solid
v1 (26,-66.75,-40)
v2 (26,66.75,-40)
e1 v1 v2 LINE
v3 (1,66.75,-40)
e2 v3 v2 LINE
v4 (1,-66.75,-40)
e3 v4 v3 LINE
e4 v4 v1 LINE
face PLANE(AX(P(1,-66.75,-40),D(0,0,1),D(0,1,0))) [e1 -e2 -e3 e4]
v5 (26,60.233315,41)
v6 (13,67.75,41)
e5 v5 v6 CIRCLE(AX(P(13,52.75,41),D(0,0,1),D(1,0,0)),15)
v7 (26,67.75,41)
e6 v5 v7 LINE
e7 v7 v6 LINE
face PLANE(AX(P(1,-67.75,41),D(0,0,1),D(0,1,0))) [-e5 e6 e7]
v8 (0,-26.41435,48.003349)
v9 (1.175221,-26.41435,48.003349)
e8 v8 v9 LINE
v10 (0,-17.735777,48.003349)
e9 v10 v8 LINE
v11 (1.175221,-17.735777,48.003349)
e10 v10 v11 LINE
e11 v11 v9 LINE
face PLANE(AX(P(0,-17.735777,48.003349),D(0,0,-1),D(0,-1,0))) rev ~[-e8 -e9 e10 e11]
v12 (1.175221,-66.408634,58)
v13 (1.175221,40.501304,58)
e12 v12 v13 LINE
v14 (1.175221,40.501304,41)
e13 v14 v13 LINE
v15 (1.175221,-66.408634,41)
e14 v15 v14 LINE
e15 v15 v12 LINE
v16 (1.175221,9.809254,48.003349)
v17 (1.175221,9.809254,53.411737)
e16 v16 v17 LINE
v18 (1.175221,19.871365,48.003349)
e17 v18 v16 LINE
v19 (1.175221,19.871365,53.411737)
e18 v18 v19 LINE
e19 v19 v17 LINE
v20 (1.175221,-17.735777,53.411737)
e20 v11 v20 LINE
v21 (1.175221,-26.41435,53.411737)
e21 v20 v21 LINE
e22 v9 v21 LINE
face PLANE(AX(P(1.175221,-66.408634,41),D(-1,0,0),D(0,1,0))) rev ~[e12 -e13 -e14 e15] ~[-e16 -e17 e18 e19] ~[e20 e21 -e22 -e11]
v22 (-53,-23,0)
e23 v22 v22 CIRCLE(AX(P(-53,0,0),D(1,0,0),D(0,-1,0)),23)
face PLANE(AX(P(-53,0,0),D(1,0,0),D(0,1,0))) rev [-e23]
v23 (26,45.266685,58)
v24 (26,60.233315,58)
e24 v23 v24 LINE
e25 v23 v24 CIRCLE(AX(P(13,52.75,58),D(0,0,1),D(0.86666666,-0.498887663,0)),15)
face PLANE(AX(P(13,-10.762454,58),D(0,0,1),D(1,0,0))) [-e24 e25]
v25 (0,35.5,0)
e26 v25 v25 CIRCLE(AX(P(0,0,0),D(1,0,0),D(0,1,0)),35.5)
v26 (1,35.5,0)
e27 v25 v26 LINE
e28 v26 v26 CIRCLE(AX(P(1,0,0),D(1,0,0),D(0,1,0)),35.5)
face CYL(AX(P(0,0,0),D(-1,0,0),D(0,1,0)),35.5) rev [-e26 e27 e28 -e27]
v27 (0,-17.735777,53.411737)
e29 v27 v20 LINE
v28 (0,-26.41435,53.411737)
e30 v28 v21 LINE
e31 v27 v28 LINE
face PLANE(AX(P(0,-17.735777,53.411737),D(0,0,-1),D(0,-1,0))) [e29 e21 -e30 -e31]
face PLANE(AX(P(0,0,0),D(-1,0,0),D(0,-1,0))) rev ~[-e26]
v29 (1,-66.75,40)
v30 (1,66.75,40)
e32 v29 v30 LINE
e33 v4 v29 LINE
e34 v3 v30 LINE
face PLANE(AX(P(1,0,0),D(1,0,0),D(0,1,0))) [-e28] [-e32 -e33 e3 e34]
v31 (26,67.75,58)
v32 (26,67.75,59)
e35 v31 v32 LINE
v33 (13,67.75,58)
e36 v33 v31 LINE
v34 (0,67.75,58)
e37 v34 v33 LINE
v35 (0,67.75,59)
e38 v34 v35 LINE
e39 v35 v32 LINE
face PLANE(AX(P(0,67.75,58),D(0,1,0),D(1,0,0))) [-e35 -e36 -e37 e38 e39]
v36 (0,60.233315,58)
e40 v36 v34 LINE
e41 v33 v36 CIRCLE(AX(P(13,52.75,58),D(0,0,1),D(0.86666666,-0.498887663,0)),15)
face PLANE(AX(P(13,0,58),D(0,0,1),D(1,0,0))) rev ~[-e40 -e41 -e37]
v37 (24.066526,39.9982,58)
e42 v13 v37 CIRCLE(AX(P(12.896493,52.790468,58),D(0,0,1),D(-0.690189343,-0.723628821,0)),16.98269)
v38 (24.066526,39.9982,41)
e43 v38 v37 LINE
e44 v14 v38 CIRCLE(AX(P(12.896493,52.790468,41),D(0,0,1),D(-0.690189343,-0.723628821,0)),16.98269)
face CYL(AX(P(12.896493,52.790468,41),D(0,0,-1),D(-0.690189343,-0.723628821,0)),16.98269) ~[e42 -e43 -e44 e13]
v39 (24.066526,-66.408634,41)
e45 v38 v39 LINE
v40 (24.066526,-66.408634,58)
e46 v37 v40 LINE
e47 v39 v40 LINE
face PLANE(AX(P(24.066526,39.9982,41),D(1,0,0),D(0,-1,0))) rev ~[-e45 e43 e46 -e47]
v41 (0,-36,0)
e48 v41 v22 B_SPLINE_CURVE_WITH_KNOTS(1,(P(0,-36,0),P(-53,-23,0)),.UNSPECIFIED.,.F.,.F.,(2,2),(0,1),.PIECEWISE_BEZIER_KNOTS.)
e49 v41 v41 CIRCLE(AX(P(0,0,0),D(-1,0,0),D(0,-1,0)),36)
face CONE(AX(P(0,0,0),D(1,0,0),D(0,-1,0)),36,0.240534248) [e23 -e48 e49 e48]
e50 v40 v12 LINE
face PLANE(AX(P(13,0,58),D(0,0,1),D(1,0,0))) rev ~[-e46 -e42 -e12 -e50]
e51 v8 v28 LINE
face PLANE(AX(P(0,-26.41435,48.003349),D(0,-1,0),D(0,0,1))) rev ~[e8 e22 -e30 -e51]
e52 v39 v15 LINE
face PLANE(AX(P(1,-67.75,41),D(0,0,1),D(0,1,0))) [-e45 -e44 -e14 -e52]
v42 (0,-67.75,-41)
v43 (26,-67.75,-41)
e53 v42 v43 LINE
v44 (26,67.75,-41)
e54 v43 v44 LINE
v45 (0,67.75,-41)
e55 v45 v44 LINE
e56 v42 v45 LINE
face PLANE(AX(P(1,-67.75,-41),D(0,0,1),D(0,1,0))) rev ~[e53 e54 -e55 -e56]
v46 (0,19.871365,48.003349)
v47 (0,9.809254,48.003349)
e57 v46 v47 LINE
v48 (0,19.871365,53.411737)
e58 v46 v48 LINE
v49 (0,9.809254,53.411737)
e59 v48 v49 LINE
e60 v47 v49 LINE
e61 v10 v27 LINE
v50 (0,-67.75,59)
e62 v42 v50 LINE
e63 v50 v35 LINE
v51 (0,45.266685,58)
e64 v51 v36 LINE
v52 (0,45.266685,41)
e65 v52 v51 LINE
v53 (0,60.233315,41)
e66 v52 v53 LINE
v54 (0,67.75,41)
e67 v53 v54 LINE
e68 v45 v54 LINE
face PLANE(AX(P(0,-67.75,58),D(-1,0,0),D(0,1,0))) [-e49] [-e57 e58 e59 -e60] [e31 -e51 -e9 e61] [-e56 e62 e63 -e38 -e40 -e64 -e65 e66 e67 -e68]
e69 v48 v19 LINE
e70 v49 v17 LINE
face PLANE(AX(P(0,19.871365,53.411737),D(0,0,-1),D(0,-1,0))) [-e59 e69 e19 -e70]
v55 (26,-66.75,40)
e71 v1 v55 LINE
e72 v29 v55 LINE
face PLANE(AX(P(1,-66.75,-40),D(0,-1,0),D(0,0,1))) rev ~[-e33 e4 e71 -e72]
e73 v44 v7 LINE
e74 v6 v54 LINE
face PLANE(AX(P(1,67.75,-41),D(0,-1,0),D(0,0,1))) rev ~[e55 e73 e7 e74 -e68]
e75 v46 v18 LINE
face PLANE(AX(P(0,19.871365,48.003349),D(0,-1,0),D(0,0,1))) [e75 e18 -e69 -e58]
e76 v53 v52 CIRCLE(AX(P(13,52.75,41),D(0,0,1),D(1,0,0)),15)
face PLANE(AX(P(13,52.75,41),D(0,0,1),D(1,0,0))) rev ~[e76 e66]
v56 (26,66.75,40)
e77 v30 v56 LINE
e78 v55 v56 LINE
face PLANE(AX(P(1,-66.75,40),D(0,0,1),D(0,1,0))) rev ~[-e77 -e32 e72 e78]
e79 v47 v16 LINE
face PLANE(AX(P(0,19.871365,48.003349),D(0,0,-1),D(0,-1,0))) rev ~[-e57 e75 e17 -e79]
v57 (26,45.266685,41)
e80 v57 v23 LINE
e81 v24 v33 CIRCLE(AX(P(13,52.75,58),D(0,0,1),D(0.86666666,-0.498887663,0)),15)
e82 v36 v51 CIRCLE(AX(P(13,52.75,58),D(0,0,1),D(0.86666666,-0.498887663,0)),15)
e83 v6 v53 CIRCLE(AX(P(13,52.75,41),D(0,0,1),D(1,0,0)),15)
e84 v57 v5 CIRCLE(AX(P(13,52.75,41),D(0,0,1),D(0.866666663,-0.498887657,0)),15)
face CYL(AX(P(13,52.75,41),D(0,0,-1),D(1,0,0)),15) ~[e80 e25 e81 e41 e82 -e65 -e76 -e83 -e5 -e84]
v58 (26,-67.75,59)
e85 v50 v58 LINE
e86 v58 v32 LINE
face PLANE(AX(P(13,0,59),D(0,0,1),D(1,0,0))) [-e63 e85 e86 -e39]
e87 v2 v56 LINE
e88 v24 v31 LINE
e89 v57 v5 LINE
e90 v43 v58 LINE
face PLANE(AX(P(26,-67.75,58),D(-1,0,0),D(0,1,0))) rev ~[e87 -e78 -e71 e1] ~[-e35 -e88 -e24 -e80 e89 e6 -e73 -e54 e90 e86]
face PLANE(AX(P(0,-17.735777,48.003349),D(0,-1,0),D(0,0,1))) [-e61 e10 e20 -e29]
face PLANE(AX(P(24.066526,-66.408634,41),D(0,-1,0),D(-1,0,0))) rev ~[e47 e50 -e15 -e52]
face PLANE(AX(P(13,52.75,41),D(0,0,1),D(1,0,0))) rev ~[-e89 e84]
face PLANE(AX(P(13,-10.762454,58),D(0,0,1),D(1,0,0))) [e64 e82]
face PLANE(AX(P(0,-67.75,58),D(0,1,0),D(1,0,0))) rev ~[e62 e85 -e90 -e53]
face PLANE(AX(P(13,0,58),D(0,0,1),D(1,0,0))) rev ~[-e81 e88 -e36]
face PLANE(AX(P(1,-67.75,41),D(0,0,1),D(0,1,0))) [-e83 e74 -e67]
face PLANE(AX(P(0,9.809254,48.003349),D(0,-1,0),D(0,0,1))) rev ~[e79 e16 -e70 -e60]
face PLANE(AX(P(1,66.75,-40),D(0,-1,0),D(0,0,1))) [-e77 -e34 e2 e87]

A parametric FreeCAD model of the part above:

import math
import FreeCAD as App
import Part
import Sketcher
Q = App.Units.Quantity

doc = App.newDocument("Part")
body = doc.addObject("PartDesign::Body", "Body")

# Sketch on YZ plane
sketch1 = doc.addObject("Sketcher::SketchObject", "Sketch")
body.addObject(sketch1)
sketch1.AttachmentSupport = (doc.YZ_Plane, [""])
sketch1.MapMode = "FlatFace"
sketch1.addGeometry([
    Part.LineSegment(App.Vector(-67.75, 41, 0), App.Vector(-67.75, -41, 0)),  # 0
    Part.LineSegment(App.Vector(-67.75, -41, 0), App.Vector(67.75, -41, 0)),  # 1
    Part.LineSegment(App.Vector(67.75, -41, 0), App.Vector(67.75, 41, 0)),  # 2
    Part.LineSegment(App.Vector(67.75, 41, 0), App.Vector(-67.75, 41, 0)),  # 3
    Part.Circle(App.Vector(0, 0, 0), App.Vector(0, 0, 1), 35.5),  # 4
], False)
sketch1.addConstraint([
    Sketcher.Constraint("Coincident", 0, 2, 1, 1),
    Sketcher.Constraint("Coincident", 1, 2, 2, 1),
    Sketcher.Constraint("Coincident", 2, 2, 3, 1),
    Sketcher.Constraint("Coincident", 3, 2, 0, 1),
    Sketcher.Constraint("Vertical", 0),
    Sketcher.Constraint("Horizontal", 1),
    Sketcher.Constraint("Vertical", 2),
    Sketcher.Constraint("Horizontal", 3),
    Sketcher.Constraint("Coincident", 4, 3, -1, 1),
    Sketcher.Constraint("Symmetric", 0, 2, 2, 2, -1, 1),
    Sketcher.Constraint("Diameter", 4, Q("71 mm")),
    Sketcher.Constraint("DistanceY", 0, 2, 0, 1, Q("82 mm")),
    Sketcher.Constraint("DistanceX", 1, 1, 1, 2, Q("135.5 mm")),
])
pad1 = doc.addObject("PartDesign::Pad", "Pad")
body.addObject(pad1)
pad1.Profile = sketch1
pad1.Length = 1

# Sketch on YZ plane
sketch2 = doc.addObject("Sketcher::SketchObject", "Sketch001")
body.addObject(sketch2)
sketch2.AttachmentSupport = (doc.YZ_Plane, [""])
sketch2.MapMode = "FlatFace"
sketch2.addGeometry(Part.Circle(App.Vector(0, 0, 0), App.Vector(0, 0, 1), 36), False)
sketch2.addConstraint([
    Sketcher.Constraint("Coincident", 0, 3, -1, 1),
    Sketcher.Constraint("Diameter", 0, Q("72 mm")),
])

# Sketch on YZ plane
sketch3 = doc.addObject("Sketcher::SketchObject", "Sketch002")
body.addObject(sketch3)
sketch3.AttachmentSupport = (doc.YZ_Plane, [""])
sketch3.MapMode = "FlatFace"
sketch3.AttachmentOffset = App.Placement(App.Vector(0, 0, -53), App.Rotation())
sketch3.addGeometry(Part.Circle(App.Vector(0, 0, 0), App.Vector(0, 0, 1), 23), False)
sketch3.addConstraint([
    Sketcher.Constraint("Coincident", 0, 3, -1, 1),
    Sketcher.Constraint("Diameter", 0, Q("46 mm")),
])

additiveloft = doc.addObject("PartDesign::AdditiveLoft", "AdditiveLoft")
body.addObject(additiveloft)
additiveloft.Profile = sketch2
additiveloft.Sections = [sketch3]

# Sketch on YZ plane
sketch4 = doc.addObject("Sketcher::SketchObject", "Sketch003")
body.addObject(sketch4)
sketch4.AttachmentSupport = (doc.YZ_Plane, [""])
sketch4.MapMode = "FlatFace"
sketch4.AttachmentOffset = App.Placement(App.Vector(0, 0, 1), App.Rotation())
sketch4.addGeometry([
    Part.LineSegment(App.Vector(-67.75, 41, 0), App.Vector(-67.75, -41, 0)),  # 0
    Part.LineSegment(App.Vector(-67.75, -41, 0), App.Vector(67.75, -41, 0)),  # 1
    Part.LineSegment(App.Vector(67.75, -41, 0), App.Vector(67.75, 41, 0)),  # 2
    Part.LineSegment(App.Vector(67.75, 41, 0), App.Vector(-67.75, 41, 0)),  # 3
    Part.LineSegment(App.Vector(66.75, -40, 0), App.Vector(-66.75, -40, 0)),  # 4
    Part.LineSegment(App.Vector(-66.75, -40, 0), App.Vector(-66.75, 40, 0)),  # 5
    Part.LineSegment(App.Vector(-66.75, 40, 0), App.Vector(66.75, 40, 0)),  # 6
    Part.LineSegment(App.Vector(66.75, 40, 0), App.Vector(66.75, -40, 0)),  # 7
], False)
sketch4.addConstraint([
    Sketcher.Constraint("Coincident", 0, 2, 1, 1),
    Sketcher.Constraint("Coincident", 1, 2, 2, 1),
    Sketcher.Constraint("Coincident", 2, 2, 3, 1),
    Sketcher.Constraint("Coincident", 3, 2, 0, 1),
    Sketcher.Constraint("Coincident", 4, 2, 5, 1),
    Sketcher.Constraint("Coincident", 5, 2, 6, 1),
    Sketcher.Constraint("Coincident", 6, 2, 7, 1),
    Sketcher.Constraint("Coincident", 7, 2, 4, 1),
    Sketcher.Constraint("Vertical", 0),
    Sketcher.Constraint("Horizontal", 1),
    Sketcher.Constraint("Vertical", 2),
    Sketcher.Constraint("Horizontal", 3),
    Sketcher.Constraint("Horizontal", 4),
    Sketcher.Constraint("Vertical", 5),
    Sketcher.Constraint("Horizontal", 6),
    Sketcher.Constraint("Vertical", 7),
    Sketcher.Constraint("Symmetric", 0, 2, 2, 2, -1, 1),
    Sketcher.Constraint("Symmetric", 4, 2, 6, 2, -1, 1),
    Sketcher.Constraint("DistanceY", 0, 2, 0, 1, Q("82 mm")),
    Sketcher.Constraint("DistanceY", 5, 1, 5, 2, Q("80 mm")),
    Sketcher.Constraint("DistanceX", 1, 1, 1, 2, Q("135.5 mm")),
    Sketcher.Constraint("DistanceX", 4, 2, 4, 1, Q("133.5 mm")),
])
pad2 = doc.addObject("PartDesign::Pad", "Pad001")
body.addObject(pad2)
pad2.Profile = sketch4
pad2.Length = 25

# Sketch on XY plane
sketch5 = doc.addObject("Sketcher::SketchObject", "Sketch004")
body.addObject(sketch5)
sketch5.AttachmentSupport = (doc.XY_Plane, [""])
sketch5.MapMode = "FlatFace"
sketch5.AttachmentOffset = App.Placement(App.Vector(0, 0, 41), App.Rotation())
sketch5.addGeometry(Part.Circle(App.Vector(13, 52.75, 0), App.Vector(0, 0, 1), 15), False)
sketch5.addConstraint([
    Sketcher.Constraint("Diameter", 0, Q("30 mm")),
    Sketcher.Constraint("DistanceX", -1, 1, 0, 3, Q("13 mm")),
    Sketcher.Constraint("DistanceY", -1, 1, 0, 3, Q("52.75 mm")),
])
pad3 = doc.addObject("PartDesign::Pad", "Pad002")
body.addObject(pad3)
pad3.Profile = sketch5
pad3.Length = 17

# Sketch on XY plane
sketch6 = doc.addObject("Sketcher::SketchObject", "Sketch005")
body.addObject(sketch6)
sketch6.AttachmentSupport = (doc.XY_Plane, [""])
sketch6.MapMode = "FlatFace"
sketch6.AttachmentOffset = App.Placement(App.Vector(0, 0, 41), App.Rotation())
sketch6.addGeometry([
    Part.LineSegment(App.Vector(0, -67.75, 0), App.Vector(26, -67.75, 0)),  # 0
    Part.LineSegment(App.Vector(26, -67.75, 0), App.Vector(26, 45.266685, 0)),  # 1
    Part.ArcOfCircle(Part.Circle(App.Vector(13, 52.791075, 0), App.Vector(0, 0, 1), 15.020534), math.radians(-149.937774), math.radians(-30.062226)),  # 2
    Part.LineSegment(App.Vector(0, 45.266685, 0), App.Vector(0, -67.75, 0)),  # 3
    Part.LineSegment(App.Vector(24.066526, 39.9982, 0), App.Vector(24.066526, -66.408634, 0)),  # 4
    Part.LineSegment(App.Vector(24.066526, -66.408634, 0), App.Vector(1.175221, -66.408634, 0)),  # 5
    Part.LineSegment(App.Vector(1.175221, -66.408634, 0), App.Vector(1.175221, 40.501304, 0)),  # 6
    Part.ArcOfCircle(Part.Circle(App.Vector(12.896493, 52.790468, 0), App.Vector(0, 0, 1), 16.98269), math.radians(-133.645099), math.radians(-48.872984)),  # 7
], False)
sketch6.addConstraint([
    Sketcher.Constraint("Coincident", 0, 2, 1, 1),
    Sketcher.Constraint("Coincident", 1, 2, 2, 2),
    Sketcher.Constraint("Coincident", 2, 1, 3, 1),
    Sketcher.Constraint("Coincident", 3, 2, 0, 1),
    Sketcher.Constraint("Coincident", 4, 2, 5, 1),
    Sketcher.Constraint("Coincident", 5, 2, 6, 1),
    Sketcher.Constraint("Coincident", 6, 2, 7, 1),
    Sketcher.Constraint("Coincident", 7, 2, 4, 1),
    Sketcher.Constraint("Horizontal", 0),
    Sketcher.Constraint("Vertical", 1),
    Sketcher.Constraint("Vertical", 3),
    Sketcher.Constraint("Vertical", 4),
    Sketcher.Constraint("Horizontal", 5),
    Sketcher.Constraint("Vertical", 6),
    Sketcher.Constraint("PointOnObject", 2, 1, -2),
    Sketcher.Constraint("Horizontal", 1, 2, 2, 1),
    Sketcher.Constraint("DistanceX", 0, 1, 0, 2, Q("26 mm")),
    Sketcher.Constraint("DistanceY", 0, 2, -1, 1, Q("67.75 mm")),
    Sketcher.Constraint("Radius", 7, Q("16.98269 mm")),
    Sketcher.Constraint("Radius", 2, Q("15.020534 mm")),
    Sketcher.Constraint("DistanceY", 6, 1, 6, 2, Q("106.909938 mm")),
    Sketcher.Constraint("DistanceY", -1, 1, 7, 2, Q("39.9982 mm")),
    Sketcher.Constraint("DistanceX", 5, 2, 5, 1, Q("22.891305 mm")),
    Sketcher.Constraint("DistanceY", 1, 1, 1, 2, Q("113.016685 mm")),
    Sketcher.Constraint("DistanceY", 4, 2, 4, 1, Q("106.406834 mm")),
    Sketcher.Constraint("DistanceX", -1, 1, 5, 2, Q("1.175221 mm")),
])
pad4 = doc.addObject("PartDesign::Pad", "Pad003")
body.addObject(pad4)
pad4.Profile = sketch6
pad4.Length = 17

# Sketch on XY plane
sketch7 = doc.addObject("Sketcher::SketchObject", "Sketch006")
body.addObject(sketch7)
sketch7.AttachmentSupport = (doc.XY_Plane, [""])
sketch7.MapMode = "FlatFace"
sketch7.AttachmentOffset = App.Placement(App.Vector(0, 0, 58), App.Rotation())
sketch7.addGeometry([
    Part.LineSegment(App.Vector(0, 67.75, 0), App.Vector(0, -67.75, 0)),
    Part.LineSegment(App.Vector(0, -67.75, 0), App.Vector(26, -67.75, 0)),
    Part.LineSegment(App.Vector(26, -67.75, 0), App.Vector(26, 67.75, 0)),
    Part.LineSegment(App.Vector(26, 67.75, 0), App.Vector(0, 67.75, 0)),
], False)
sketch7.addConstraint([
    Sketcher.Constraint("Coincident", 0, 2, 1, 1),
    Sketcher.Constraint("Coincident", 1, 2, 2, 1),
    Sketcher.Constraint("Coincident", 2, 2, 3, 1),
    Sketcher.Constraint("Coincident", 3, 2, 0, 1),
    Sketcher.Constraint("Vertical", 0),
    Sketcher.Constraint("Horizontal", 1),
    Sketcher.Constraint("Vertical", 2),
    Sketcher.Constraint("Horizontal", 3),
    Sketcher.Constraint("Symmetric", 0, 2, 3, 2, -1, 1),
    Sketcher.Constraint("DistanceX", 1, 1, 1, 2, Q("26 mm")),
    Sketcher.Constraint("DistanceY", 0, 2, 0, 1, Q("135.5 mm")),
])
pad5 = doc.addObject("PartDesign::Pad", "Pad004")
body.addObject(pad5)
pad5.Profile = sketch7
pad5.Length = 1

# Sketch on YZ plane
sketch8 = doc.addObject("Sketcher::SketchObject", "Sketch007")
body.addObject(sketch8)
sketch8.AttachmentSupport = (doc.YZ_Plane, [""])
sketch8.MapMode = "FlatFace"
sketch8.addGeometry([
    Part.LineSegment(App.Vector(-17.735777, 53.411737, 0), App.Vector(-17.735777, 48.003349, 0)),  # 0
    Part.LineSegment(App.Vector(-17.735777, 48.003349, 0), App.Vector(-26.41435, 48.003349, 0)),  # 1
    Part.LineSegment(App.Vector(-26.41435, 48.003349, 0), App.Vector(-26.41435, 53.411737, 0)),  # 2
    Part.LineSegment(App.Vector(-26.41435, 53.411737, 0), App.Vector(-17.735777, 53.411737, 0)),  # 3
    Part.LineSegment(App.Vector(19.871365, 53.411737, 0), App.Vector(19.871365, 48.003349, 0)),  # 4
    Part.LineSegment(App.Vector(19.871365, 48.003349, 0), App.Vector(9.809254, 48.003349, 0)),  # 5
    Part.LineSegment(App.Vector(9.809254, 48.003349, 0), App.Vector(9.809254, 53.411737, 0)),  # 6
    Part.LineSegment(App.Vector(9.809254, 53.411737, 0), App.Vector(19.871365, 53.411737, 0)),  # 7
], False)
sketch8.addConstraint([
    Sketcher.Constraint("Coincident", 0, 2, 1, 1),
    Sketcher.Constraint("Coincident", 1, 2, 2, 1),
    Sketcher.Constraint("Coincident", 2, 2, 3, 1),
    Sketcher.Constraint("Coincident", 3, 2, 0, 1),
    Sketcher.Constraint("Coincident", 4, 2, 5, 1),
    Sketcher.Constraint("Coincident", 5, 2, 6, 1),
    Sketcher.Constraint("Coincident", 6, 2, 7, 1),
    Sketcher.Constraint("Coincident", 7, 2, 4, 1),
    Sketcher.Constraint("Vertical", 0),
    Sketcher.Constraint("Horizontal", 1),
    Sketcher.Constraint("Vertical", 2),
    Sketcher.Constraint("Horizontal", 3),
    Sketcher.Constraint("Vertical", 4),
    Sketcher.Constraint("Horizontal", 5),
    Sketcher.Constraint("Vertical", 6),
    Sketcher.Constraint("Horizontal", 7),
    Sketcher.Constraint("Horizontal", 1, 2, 4, 2),
    Sketcher.Constraint("Horizontal", 3, 2, 6, 2),
    Sketcher.Constraint("DistanceX", 5, 2, 5, 1, Q("10.062111 mm")),
    Sketcher.Constraint("DistanceY", 0, 2, 0, 1, Q("5.408388 mm")),
    Sketcher.Constraint("DistanceX", 1, 2, 1, 1, Q("8.678573 mm")),
    Sketcher.Constraint("DistanceY", -1, 1, 0, 2, Q("48.003349 mm")),
    Sketcher.Constraint("DistanceX", 1, 2, -1, 1, Q("26.41435 mm")),
    Sketcher.Constraint("DistanceX", 0, 2, 4, 2, Q("37.607142 mm")),
])
pocket1 = doc.addObject("PartDesign::Pocket", "Pocket")
body.addObject(pocket1)
pocket1.Profile = sketch8
pocket1.Length = 17.4
pocket1.Reversed = True

doc.recompute()
